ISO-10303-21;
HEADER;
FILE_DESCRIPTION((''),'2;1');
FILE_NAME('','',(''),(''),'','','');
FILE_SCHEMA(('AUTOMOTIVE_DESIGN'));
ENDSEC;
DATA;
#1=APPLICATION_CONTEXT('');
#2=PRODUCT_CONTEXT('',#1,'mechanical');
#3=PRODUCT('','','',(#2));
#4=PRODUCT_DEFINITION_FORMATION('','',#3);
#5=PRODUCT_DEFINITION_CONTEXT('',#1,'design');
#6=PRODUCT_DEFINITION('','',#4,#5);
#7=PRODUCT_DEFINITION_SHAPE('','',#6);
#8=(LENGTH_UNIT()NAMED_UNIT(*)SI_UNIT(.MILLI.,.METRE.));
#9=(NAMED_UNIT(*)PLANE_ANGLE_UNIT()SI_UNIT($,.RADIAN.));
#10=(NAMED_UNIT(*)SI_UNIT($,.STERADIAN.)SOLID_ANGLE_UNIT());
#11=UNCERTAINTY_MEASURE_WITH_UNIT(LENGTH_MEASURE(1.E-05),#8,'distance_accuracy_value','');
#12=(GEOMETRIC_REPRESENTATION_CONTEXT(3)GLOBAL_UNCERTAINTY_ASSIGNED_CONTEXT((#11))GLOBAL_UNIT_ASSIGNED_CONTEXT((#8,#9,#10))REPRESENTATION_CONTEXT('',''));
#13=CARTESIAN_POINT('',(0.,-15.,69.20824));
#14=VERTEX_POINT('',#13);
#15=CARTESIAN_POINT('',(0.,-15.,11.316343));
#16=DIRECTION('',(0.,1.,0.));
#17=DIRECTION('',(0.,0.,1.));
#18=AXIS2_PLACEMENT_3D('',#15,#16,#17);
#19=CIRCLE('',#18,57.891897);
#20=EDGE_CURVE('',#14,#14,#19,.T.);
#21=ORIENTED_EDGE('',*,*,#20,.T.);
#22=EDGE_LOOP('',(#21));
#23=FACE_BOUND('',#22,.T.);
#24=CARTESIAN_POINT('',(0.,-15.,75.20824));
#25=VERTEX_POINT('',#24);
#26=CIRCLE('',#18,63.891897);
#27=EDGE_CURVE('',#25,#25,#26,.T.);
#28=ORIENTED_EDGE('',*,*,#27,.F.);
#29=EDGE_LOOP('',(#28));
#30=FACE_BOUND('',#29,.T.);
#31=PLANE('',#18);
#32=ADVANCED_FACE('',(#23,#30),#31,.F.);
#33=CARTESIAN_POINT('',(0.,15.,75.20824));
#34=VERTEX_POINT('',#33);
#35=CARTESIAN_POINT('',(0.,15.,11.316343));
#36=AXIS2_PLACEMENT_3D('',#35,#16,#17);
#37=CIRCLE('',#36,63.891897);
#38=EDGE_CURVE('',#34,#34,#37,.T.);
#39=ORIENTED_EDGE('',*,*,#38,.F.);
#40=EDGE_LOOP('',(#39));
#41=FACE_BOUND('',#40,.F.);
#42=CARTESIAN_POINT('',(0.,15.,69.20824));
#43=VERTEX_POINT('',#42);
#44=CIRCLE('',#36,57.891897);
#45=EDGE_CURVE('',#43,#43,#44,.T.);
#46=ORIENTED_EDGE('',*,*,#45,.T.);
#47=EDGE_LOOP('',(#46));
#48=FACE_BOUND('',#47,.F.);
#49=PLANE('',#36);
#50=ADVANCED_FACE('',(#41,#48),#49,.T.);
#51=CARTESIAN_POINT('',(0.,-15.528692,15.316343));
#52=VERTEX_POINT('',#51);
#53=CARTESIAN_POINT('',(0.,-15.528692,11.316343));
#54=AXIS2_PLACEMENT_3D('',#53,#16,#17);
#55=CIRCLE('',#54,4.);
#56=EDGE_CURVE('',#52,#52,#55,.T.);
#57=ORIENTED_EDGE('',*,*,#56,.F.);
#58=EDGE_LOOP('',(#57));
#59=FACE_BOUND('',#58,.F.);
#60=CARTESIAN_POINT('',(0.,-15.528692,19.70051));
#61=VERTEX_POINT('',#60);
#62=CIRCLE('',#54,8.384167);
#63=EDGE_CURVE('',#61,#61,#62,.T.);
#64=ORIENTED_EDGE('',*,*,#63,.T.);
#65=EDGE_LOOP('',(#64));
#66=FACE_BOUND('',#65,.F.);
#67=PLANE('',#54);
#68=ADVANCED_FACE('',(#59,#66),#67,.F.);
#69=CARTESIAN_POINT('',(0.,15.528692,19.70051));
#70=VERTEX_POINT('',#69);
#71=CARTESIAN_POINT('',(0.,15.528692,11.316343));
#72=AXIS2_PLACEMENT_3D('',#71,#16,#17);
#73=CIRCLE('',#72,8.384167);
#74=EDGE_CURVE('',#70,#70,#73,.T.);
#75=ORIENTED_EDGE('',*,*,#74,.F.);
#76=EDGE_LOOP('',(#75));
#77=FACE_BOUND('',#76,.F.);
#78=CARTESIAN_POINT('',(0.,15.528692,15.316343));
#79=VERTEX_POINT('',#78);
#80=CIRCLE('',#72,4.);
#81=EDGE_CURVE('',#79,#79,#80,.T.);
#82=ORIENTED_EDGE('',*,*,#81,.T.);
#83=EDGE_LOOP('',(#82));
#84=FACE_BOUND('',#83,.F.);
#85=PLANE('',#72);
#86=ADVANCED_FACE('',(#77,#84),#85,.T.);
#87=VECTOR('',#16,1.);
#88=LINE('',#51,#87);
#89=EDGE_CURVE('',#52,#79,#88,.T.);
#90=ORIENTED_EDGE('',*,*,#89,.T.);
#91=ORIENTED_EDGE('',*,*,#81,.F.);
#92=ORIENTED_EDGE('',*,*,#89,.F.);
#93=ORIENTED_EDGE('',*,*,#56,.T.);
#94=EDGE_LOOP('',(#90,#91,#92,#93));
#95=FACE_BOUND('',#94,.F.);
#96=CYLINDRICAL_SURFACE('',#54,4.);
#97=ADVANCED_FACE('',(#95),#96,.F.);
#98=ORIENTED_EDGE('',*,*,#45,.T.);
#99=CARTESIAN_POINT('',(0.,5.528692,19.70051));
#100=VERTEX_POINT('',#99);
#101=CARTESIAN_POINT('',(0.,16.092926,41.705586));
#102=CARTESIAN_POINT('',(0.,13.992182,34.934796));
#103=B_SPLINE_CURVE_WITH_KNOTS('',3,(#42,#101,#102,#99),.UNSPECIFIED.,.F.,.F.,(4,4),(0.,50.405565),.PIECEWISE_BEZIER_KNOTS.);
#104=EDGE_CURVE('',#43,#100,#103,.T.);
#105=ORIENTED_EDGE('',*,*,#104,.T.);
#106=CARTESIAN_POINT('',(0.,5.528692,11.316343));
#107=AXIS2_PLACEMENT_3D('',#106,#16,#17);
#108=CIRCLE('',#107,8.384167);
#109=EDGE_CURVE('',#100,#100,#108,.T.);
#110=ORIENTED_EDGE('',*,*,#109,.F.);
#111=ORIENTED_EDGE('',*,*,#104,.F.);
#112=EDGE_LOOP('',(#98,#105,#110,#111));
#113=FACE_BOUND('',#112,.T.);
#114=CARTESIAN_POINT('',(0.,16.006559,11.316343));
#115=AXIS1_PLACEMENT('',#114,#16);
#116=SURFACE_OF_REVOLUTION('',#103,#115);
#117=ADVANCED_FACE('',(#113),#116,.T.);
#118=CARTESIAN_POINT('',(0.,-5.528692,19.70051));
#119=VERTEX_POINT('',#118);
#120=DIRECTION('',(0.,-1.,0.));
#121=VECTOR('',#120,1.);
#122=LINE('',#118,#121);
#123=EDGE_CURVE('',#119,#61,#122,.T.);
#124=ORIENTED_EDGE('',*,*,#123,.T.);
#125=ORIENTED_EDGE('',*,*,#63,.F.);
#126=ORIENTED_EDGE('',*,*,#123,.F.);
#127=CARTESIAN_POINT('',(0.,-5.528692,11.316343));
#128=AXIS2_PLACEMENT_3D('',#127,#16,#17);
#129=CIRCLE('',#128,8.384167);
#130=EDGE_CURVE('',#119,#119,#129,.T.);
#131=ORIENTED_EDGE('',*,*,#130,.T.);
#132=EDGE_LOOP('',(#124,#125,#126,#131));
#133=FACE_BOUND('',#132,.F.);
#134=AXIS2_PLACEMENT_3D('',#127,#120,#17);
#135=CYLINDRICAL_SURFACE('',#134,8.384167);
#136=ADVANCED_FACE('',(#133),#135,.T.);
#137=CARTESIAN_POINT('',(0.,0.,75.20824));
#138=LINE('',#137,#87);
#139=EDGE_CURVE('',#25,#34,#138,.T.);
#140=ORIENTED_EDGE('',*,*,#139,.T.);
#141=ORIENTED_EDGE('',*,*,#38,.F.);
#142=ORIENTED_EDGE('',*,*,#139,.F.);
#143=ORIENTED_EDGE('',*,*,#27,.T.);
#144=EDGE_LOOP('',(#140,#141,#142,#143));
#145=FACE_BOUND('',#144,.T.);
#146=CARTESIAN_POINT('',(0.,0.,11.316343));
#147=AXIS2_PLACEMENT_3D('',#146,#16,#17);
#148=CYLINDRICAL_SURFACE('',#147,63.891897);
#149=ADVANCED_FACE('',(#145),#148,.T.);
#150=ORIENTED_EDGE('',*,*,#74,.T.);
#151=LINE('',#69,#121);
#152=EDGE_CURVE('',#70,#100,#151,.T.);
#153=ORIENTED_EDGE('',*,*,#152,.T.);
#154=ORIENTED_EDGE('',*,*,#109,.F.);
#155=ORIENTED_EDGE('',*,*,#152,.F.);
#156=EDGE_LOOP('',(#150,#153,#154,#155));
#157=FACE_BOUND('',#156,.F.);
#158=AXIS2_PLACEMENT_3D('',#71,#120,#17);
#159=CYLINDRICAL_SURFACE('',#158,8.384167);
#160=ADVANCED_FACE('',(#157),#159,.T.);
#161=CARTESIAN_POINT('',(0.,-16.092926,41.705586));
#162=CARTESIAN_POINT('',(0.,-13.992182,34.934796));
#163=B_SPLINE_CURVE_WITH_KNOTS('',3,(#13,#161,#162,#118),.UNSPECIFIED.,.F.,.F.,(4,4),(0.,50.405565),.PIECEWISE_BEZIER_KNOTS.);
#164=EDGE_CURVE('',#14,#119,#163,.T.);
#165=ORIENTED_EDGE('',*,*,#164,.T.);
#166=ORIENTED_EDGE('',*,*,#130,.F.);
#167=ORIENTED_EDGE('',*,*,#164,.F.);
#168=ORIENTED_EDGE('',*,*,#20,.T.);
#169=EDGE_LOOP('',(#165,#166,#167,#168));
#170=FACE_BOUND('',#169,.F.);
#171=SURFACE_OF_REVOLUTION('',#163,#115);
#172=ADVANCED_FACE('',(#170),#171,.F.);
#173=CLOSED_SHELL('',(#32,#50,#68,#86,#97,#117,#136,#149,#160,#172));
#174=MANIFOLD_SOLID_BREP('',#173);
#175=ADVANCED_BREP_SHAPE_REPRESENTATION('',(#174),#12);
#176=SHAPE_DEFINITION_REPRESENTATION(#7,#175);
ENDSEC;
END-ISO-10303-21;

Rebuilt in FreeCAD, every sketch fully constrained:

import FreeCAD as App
import Part
import Sketcher
from FreeCAD import Vector
Q = App.Units.Quantity

doc = App.newDocument("Part")
body = doc.addObject("PartDesign::Body", "Body")

sketch1 = doc.addObject("Sketcher::SketchObject", "Sketch")
body.addObject(sketch1)
sketch1.AttachmentSupport = (doc.YZ_Plane, [""])
sketch1.MapMode = "FlatFace"
sketch1.addGeometry(Part.LineSegment(Vector(-15, 75.20824, 0), Vector(-15, 69.20824, 0)), False)
sketch1.addGeometry(Part.BSplineCurve([Vector(-15, 69.20824, 0), Vector(-16.092926, 41.705586, 0), Vector(-13.992182, 34.934796, 0), Vector(-5.528692, 19.70051, 0)], [4, 4], [0, 50.405565], False, 3, [1, 1, 1, 1], False), False)
sketch1.addGeometry(Part.LineSegment(Vector(-5.528692, 19.70051, 0), Vector(-15.528692, 19.70051, 0)), False)
sketch1.addGeometry(Part.LineSegment(Vector(-15.528692, 19.70051, 0), Vector(-15.528692, 15.316343, 0)), False)
sketch1.addGeometry(Part.LineSegment(Vector(-15.528692, 15.316343, 0), Vector(15.528692, 15.316343, 0)), False)
sketch1.addGeometry(Part.LineSegment(Vector(15.528692, 15.316343, 0), Vector(15.528692, 19.70051, 0)), False)
sketch1.addGeometry(Part.LineSegment(Vector(15.528692, 19.70051, 0), Vector(5.528692, 19.70051, 0)), False)
sketch1.addGeometry(Part.BSplineCurve([Vector(15, 69.20824, 0), Vector(16.092926, 41.705586, 0), Vector(13.992182, 34.934796, 0), Vector(5.528692, 19.70051, 0)], [4, 4], [0, 50.405565], False, 3, [1, 1, 1, 1], False), False)
sketch1.addGeometry(Part.LineSegment(Vector(15, 69.20824, 0), Vector(15, 75.20824, 0)), False)
sketch1.addGeometry(Part.LineSegment(Vector(15, 75.20824, 0), Vector(-15, 75.20824, 0)), False)
sketch1.addGeometry(Part.LineSegment(Vector(-15.528692, 11.316343, 0), Vector(15.528692, 11.316343, 0)), True)
sketch1.addConstraint(Sketcher.Constraint("Block", 1))
sketch1.addConstraint(Sketcher.Constraint("Block", 7))
sketch1.addConstraint(Sketcher.Constraint("Coincident", 0, 2, 1, 1))
sketch1.addConstraint(Sketcher.Constraint("Coincident", 1, 2, 2, 1))
sketch1.addConstraint(Sketcher.Constraint("Coincident", 2, 2, 3, 1))
sketch1.addConstraint(Sketcher.Constraint("Coincident", 3, 2, 4, 1))
sketch1.addConstraint(Sketcher.Constraint("Coincident", 4, 2, 5, 1))
sketch1.addConstraint(Sketcher.Constraint("Coincident", 5, 2, 6, 1))
sketch1.addConstraint(Sketcher.Constraint("Coincident", 6, 2, 7, 2))
sketch1.addConstraint(Sketcher.Constraint("Coincident", 7, 1, 8, 1))
sketch1.addConstraint(Sketcher.Constraint("Coincident", 8, 2, 9, 1))
sketch1.addConstraint(Sketcher.Constraint("Coincident", 9, 2, 0, 1))
sketch1.addConstraint(Sketcher.Constraint("Vertical", 0))
sketch1.addConstraint(Sketcher.Constraint("Horizontal", 2))
sketch1.addConstraint(Sketcher.Constraint("Vertical", 3))
sketch1.addConstraint(Sketcher.Constraint("Horizontal", 4))
sketch1.addConstraint(Sketcher.Constraint("Vertical", 5))
sketch1.addConstraint(Sketcher.Constraint("Horizontal", 6))
sketch1.addConstraint(Sketcher.Constraint("Vertical", 8))
sketch1.addConstraint(Sketcher.Constraint("Horizontal", 9))
sketch1.addConstraint(Sketcher.Constraint("Horizontal", 10))
sketch1.addConstraint(Sketcher.Constraint("Vertical", 3, 2, 10, 1))
sketch1.addConstraint(Sketcher.Constraint("Vertical", 5, 2, 10, 2))
sketch1.addConstraint(Sketcher.Constraint("Equal", 2, 6))
sketch1.addConstraint(Sketcher.Constraint("DistanceX", 2, 2, 2, 1, Q("10 mm")))
sketch1.addConstraint(Sketcher.Constraint("DistanceY", 0, 2, 0, 1, Q("6 mm")))
sketch1.addConstraint(Sketcher.Constraint("DistanceY", 10, 1, 3, 2, Q("4 mm")))
sketch1.addConstraint(Sketcher.Constraint("DistanceY", 3, 2, 3, 1, Q("4.384167 mm")))
revolution = doc.addObject("PartDesign::Revolution", "Revolution")
body.addObject(revolution)
revolution.Profile = sketch1
revolution.ReferenceAxis = (sketch1, ["Axis0"])
revolution.Angle = 360

doc.recompute()
